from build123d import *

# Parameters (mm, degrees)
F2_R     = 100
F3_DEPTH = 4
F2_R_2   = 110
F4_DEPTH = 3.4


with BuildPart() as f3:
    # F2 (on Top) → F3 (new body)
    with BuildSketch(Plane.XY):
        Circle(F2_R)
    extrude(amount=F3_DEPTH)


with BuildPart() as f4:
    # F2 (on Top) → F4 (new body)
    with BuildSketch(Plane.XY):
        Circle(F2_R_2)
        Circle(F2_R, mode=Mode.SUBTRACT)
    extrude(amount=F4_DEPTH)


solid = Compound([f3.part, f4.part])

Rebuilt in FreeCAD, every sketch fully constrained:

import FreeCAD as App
import Part
import Sketcher

doc = App.newDocument("Part")
params = doc.addObject("Spreadsheet::Sheet", "Params")
for row, (alias, value) in enumerate([
    ("sketch1_diameter", "200 mm"),
    ("pad1_length", "4 mm"),
    ("sketch2_diameter", "220 mm"),
    ("sketch2_diameter2", "200 mm"),
    ("pad2_length", "3.4 mm"),
], start=1):
    params.set(f"A{row}", alias)
    params.set(f"B{row}", "=" + value)
    params.setAlias(f"B{row}", alias)

body = doc.addObject("PartDesign::Body", "Body")

sketch1 = body.newObject("Sketcher::SketchObject", "Sketch")
sketch1.AttachmentSupport = (doc.getObject("XY_Plane"), [""])
sketch1.MapMode = "FlatFace"
sketch1.addGeometry(Part.Circle(App.Vector(0, 0, 0), App.Vector(0, 0, 1), 100), False)
sketch1.addConstraint(Sketcher.Constraint("Coincident", 0, 3, -1, 1))
sketch1.addConstraint(Sketcher.Constraint("Diameter", 0, 200.0))
sketch1.setExpression("Constraints[1]", "Params.sketch1_diameter")
pad1 = body.newObject("PartDesign::Pad", "Pad")
pad1.Profile = sketch1
pad1.setExpression("Length", "Params.pad1_length")
body2 = doc.addObject("PartDesign::Body", "Body001")

sketch2 = body2.newObject("Sketcher::SketchObject", "Sketch001")
sketch2.AttachmentSupport = (doc.getObject("XY_Plane001"), [""])
sketch2.MapMode = "FlatFace"
sketch2.addGeometry(Part.Circle(App.Vector(0, 0, 0), App.Vector(0, 0, 1), 110), False)
sketch2.addGeometry(Part.Circle(App.Vector(0, 0, 0), App.Vector(0, 0, 1), 100), False)
sketch2.addConstraint(Sketcher.Constraint("Coincident", 0, 3, -1, 1))
sketch2.addConstraint(Sketcher.Constraint("Coincident", 1, 3, -1, 1))
sketch2.addConstraint(Sketcher.Constraint("Diameter", 0, 220.0))
sketch2.addConstraint(Sketcher.Constraint("Diameter", 1, 200.0))
sketch2.setExpression("Constraints[2]", "Params.sketch2_diameter")
sketch2.setExpression("Constraints[3]", "Params.sketch2_diameter2")
pad2 = body2.newObject("PartDesign::Pad", "Pad001")
pad2.Profile = sketch2
pad2.setExpression("Length", "Params.pad2_length")

doc.recompute()
